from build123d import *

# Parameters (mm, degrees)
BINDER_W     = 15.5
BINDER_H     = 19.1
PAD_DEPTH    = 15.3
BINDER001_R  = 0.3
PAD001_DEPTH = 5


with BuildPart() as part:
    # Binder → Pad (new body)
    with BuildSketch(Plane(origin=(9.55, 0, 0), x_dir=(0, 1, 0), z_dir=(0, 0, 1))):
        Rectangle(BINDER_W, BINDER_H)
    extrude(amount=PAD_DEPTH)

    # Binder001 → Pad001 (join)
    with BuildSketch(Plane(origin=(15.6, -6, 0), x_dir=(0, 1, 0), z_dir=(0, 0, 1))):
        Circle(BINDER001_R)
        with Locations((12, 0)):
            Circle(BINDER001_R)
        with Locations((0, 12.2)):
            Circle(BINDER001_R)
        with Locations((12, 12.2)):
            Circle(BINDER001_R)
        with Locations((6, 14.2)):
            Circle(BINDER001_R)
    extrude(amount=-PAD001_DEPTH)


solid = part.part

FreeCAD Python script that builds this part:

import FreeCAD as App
import Part
import Sketcher

doc = App.newDocument("Part")
body = doc.addObject("PartDesign::Body", "Body")

# Sketch on XY plane
sketch1 = body.newObject("Sketcher::SketchObject", "Sketch")
sketch1.AttachmentSupport = (doc.getObject("XY_Plane"), [""])
sketch1.MapMode = "FlatFace"
sketch1.addGeometry([
    Part.LineSegment(App.Vector(0, -8, 0), App.Vector(19, -8, 0)),
    Part.LineSegment(App.Vector(19, -8, 0), App.Vector(19, 8, 0)),
    Part.LineSegment(App.Vector(19, 8, 0), App.Vector(0, 8, 0)),
    Part.LineSegment(App.Vector(0, 8, 0), App.Vector(0, -8, 0)),
], False)
sketch1.addConstraint([
    Sketcher.Constraint("Coincident", 0, 2, 1, 1),
    Sketcher.Constraint("Coincident", 1, 2, 2, 1),
    Sketcher.Constraint("Coincident", 2, 2, 3, 1),
    Sketcher.Constraint("Coincident", 3, 2, 0, 1),
    Sketcher.Constraint("Horizontal", 0),
    Sketcher.Constraint("Vertical", 1),
    Sketcher.Constraint("Horizontal", 2),
    Sketcher.Constraint("Vertical", 3),
    Sketcher.Constraint("Symmetric", 2, 2, 3, 2, -1, 1),
    Sketcher.Constraint("DistanceX", 0, 1, 0, 2, 19.1),
    Sketcher.Constraint("DistanceY", 1, 1, 1, 2, 15.5),
])
pad1 = body.newObject("PartDesign::Pad", "Pad")
pad1.Profile = sketch1
pad1.Length = 15.3

# Sketch on XY plane
sketch2 = body.newObject("Sketcher::SketchObject", "Sketch001")
sketch2.AttachmentSupport = (doc.getObject("XY_Plane"), [""])
sketch2.MapMode = "FlatFace"
sketch2.addGeometry([
    Part.Circle(App.Vector(15.6, -6, 0), App.Vector(0, 0, 1), 0.3),  # 0
    Part.Circle(App.Vector(15.6, 6, 0), App.Vector(0, 0, 1), 0.3),  # 1
    Part.Circle(App.Vector(3.4, -6, 0), App.Vector(0, 0, 1), 0.3),  # 2
    Part.Circle(App.Vector(3.4, 6, 0), App.Vector(0, 0, 1), 0.3),  # 3
    Part.Circle(App.Vector(1.4, 0, 0), App.Vector(0, 0, 1), 0.3),  # 4
], False)
sketch2.addConstraint([
    Sketcher.Constraint("Equal", 0, 1),
    Sketcher.Constraint("Equal", 1, 2),
    Sketcher.Constraint("Equal", 2, 3),
    Sketcher.Constraint("Equal", 3, 4),
    Sketcher.Constraint("Symmetric", 0, 3, 1, 3, -1),
    Sketcher.Constraint("Symmetric", 2, 3, 3, 3, -1),
    Sketcher.Constraint("PointOnObject", 4, 3, -1),
    Sketcher.Constraint("Horizontal", 0, 3, 2, 3),
    Sketcher.Constraint("Diameter", 0, 0.6),
    Sketcher.Constraint("DistanceY", 0, 3, -1, 1, 6.0),
    Sketcher.Constraint("DistanceX", 4, 3, 2, 3, 2.0),
    Sketcher.Constraint("DistanceX", -1, 1, 0, 3, 15.6),
    Sketcher.Constraint("DistanceX", -1, 1, 2, 3, 3.4),
])
pad2 = body.newObject("PartDesign::Pad", "Pad001")
pad2.Profile = sketch2
pad2.Length = 5
pad2.Reversed = True

doc.recompute()
